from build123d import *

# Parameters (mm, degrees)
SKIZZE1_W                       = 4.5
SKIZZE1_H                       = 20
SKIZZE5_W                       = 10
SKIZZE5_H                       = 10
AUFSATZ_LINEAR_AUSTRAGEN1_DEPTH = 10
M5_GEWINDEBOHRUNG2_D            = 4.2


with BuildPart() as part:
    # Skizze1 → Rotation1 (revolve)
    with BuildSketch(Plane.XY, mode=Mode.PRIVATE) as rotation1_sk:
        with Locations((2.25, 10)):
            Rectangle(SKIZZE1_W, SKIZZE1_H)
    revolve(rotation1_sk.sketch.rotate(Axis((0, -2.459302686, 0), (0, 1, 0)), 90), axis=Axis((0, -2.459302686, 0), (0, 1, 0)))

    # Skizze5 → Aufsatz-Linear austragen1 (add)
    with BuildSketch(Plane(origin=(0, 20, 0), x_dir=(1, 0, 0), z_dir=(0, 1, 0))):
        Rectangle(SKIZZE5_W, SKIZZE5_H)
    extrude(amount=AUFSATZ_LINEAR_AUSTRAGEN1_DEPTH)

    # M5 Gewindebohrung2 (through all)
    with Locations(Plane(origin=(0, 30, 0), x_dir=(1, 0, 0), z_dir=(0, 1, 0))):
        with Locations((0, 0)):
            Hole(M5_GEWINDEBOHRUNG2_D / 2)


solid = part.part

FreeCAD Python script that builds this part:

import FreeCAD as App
import Part
import Sketcher
from FreeCAD import Vector

doc = App.newDocument("Part")
body = doc.addObject("PartDesign::Body", "Body")

sketch1 = body.newObject("Sketcher::SketchObject", "Sketch")
sketch1.AttachmentSupport = (doc.getObject("XY_Plane"), [""])
sketch1.MapMode = "FlatFace"
sketch1.addGeometry([
    Part.LineSegment(Vector(0, 20, 0), Vector(0, 0, 0)),
    Part.LineSegment(Vector(0, 0, 0), Vector(4.5, 0, 0)),
    Part.LineSegment(Vector(4.5, 0, 0), Vector(4.5, 20, 0)),
    Part.LineSegment(Vector(4.5, 20, 0), Vector(0, 20, 0)),
], False)
sketch1.addConstraint([
    Sketcher.Constraint("Coincident", 0, 2, 1, 1),
    Sketcher.Constraint("Coincident", 1, 2, 2, 1),
    Sketcher.Constraint("Coincident", 2, 2, 3, 1),
    Sketcher.Constraint("Coincident", 3, 2, 0, 1),
    Sketcher.Constraint("Vertical", 0),
    Sketcher.Constraint("Horizontal", 1),
    Sketcher.Constraint("Vertical", 2),
    Sketcher.Constraint("Horizontal", 3),
    Sketcher.Constraint("Coincident", 0, 2, -1, 1),
    Sketcher.Constraint("DistanceY", 0, 2, 0, 1, 20.0),
    Sketcher.Constraint("DistanceX", 1, 1, 1, 2, 4.5),
])
revolution = body.newObject("PartDesign::Revolution", "Revolution")
revolution.Profile = sketch1
revolution.ReferenceAxis = (sketch1, ["V_Axis"])
revolution.Angle = 360

sketch2 = body.newObject("Sketcher::SketchObject", "Sketch001")
sketch2.AttachmentSupport = (doc.getObject("XZ_Plane"), [""])
sketch2.MapMode = "FlatFace"
sketch2.AttachmentOffset = App.Placement(Vector(0, 0, -20), App.Rotation())
sketch2.addGeometry([
    Part.LineSegment(Vector(-5, -5, 0), Vector(-5, 5, 0)),
    Part.LineSegment(Vector(-5, 5, 0), Vector(5, 5, 0)),
    Part.LineSegment(Vector(5, 5, 0), Vector(5, -5, 0)),
    Part.LineSegment(Vector(5, -5, 0), Vector(-5, -5, 0)),
], False)
sketch2.addConstraint([
    Sketcher.Constraint("Coincident", 0, 2, 1, 1),
    Sketcher.Constraint("Coincident", 1, 2, 2, 1),
    Sketcher.Constraint("Coincident", 2, 2, 3, 1),
    Sketcher.Constraint("Coincident", 3, 2, 0, 1),
    Sketcher.Constraint("Vertical", 0),
    Sketcher.Constraint("Horizontal", 1),
    Sketcher.Constraint("Vertical", 2),
    Sketcher.Constraint("Horizontal", 3),
    Sketcher.Constraint("Symmetric", 0, 2, 2, 2, -1, 1),
    Sketcher.Constraint("Equal", 3, 0),
    Sketcher.Constraint("DistanceX", 1, 1, 1, 2, 10.0),
])
pad1 = body.newObject("PartDesign::Pad", "Pad")
pad1.Profile = sketch2
pad1.Length = 10
pad1.Reversed = True

sketch3 = body.newObject("Sketcher::SketchObject", "Sketch002")
sketch3.AttachmentSupport = (doc.getObject("XZ_Plane"), [""])
sketch3.MapMode = "FlatFace"
sketch3.AttachmentOffset = App.Placement(Vector(0, 0, -30), App.Rotation())
sketch3.addGeometry(Part.Circle(Vector(0, 0, 0), Vector(0, 0, 1), 2.1), False)
sketch3.addConstraint([
    Sketcher.Constraint("Coincident", 0, 3, -1, 1),
    Sketcher.Constraint("Diameter", 0, 4.2),
])
doc.recompute()
hole = body.newObject("PartDesign::Hole", "Hole")
hole.Profile = sketch3
hole.ThreadType = "None"
hole.Diameter = 4.2
hole.DepthType = "ThroughAll"
hole.Reversed = True

doc.recompute()
